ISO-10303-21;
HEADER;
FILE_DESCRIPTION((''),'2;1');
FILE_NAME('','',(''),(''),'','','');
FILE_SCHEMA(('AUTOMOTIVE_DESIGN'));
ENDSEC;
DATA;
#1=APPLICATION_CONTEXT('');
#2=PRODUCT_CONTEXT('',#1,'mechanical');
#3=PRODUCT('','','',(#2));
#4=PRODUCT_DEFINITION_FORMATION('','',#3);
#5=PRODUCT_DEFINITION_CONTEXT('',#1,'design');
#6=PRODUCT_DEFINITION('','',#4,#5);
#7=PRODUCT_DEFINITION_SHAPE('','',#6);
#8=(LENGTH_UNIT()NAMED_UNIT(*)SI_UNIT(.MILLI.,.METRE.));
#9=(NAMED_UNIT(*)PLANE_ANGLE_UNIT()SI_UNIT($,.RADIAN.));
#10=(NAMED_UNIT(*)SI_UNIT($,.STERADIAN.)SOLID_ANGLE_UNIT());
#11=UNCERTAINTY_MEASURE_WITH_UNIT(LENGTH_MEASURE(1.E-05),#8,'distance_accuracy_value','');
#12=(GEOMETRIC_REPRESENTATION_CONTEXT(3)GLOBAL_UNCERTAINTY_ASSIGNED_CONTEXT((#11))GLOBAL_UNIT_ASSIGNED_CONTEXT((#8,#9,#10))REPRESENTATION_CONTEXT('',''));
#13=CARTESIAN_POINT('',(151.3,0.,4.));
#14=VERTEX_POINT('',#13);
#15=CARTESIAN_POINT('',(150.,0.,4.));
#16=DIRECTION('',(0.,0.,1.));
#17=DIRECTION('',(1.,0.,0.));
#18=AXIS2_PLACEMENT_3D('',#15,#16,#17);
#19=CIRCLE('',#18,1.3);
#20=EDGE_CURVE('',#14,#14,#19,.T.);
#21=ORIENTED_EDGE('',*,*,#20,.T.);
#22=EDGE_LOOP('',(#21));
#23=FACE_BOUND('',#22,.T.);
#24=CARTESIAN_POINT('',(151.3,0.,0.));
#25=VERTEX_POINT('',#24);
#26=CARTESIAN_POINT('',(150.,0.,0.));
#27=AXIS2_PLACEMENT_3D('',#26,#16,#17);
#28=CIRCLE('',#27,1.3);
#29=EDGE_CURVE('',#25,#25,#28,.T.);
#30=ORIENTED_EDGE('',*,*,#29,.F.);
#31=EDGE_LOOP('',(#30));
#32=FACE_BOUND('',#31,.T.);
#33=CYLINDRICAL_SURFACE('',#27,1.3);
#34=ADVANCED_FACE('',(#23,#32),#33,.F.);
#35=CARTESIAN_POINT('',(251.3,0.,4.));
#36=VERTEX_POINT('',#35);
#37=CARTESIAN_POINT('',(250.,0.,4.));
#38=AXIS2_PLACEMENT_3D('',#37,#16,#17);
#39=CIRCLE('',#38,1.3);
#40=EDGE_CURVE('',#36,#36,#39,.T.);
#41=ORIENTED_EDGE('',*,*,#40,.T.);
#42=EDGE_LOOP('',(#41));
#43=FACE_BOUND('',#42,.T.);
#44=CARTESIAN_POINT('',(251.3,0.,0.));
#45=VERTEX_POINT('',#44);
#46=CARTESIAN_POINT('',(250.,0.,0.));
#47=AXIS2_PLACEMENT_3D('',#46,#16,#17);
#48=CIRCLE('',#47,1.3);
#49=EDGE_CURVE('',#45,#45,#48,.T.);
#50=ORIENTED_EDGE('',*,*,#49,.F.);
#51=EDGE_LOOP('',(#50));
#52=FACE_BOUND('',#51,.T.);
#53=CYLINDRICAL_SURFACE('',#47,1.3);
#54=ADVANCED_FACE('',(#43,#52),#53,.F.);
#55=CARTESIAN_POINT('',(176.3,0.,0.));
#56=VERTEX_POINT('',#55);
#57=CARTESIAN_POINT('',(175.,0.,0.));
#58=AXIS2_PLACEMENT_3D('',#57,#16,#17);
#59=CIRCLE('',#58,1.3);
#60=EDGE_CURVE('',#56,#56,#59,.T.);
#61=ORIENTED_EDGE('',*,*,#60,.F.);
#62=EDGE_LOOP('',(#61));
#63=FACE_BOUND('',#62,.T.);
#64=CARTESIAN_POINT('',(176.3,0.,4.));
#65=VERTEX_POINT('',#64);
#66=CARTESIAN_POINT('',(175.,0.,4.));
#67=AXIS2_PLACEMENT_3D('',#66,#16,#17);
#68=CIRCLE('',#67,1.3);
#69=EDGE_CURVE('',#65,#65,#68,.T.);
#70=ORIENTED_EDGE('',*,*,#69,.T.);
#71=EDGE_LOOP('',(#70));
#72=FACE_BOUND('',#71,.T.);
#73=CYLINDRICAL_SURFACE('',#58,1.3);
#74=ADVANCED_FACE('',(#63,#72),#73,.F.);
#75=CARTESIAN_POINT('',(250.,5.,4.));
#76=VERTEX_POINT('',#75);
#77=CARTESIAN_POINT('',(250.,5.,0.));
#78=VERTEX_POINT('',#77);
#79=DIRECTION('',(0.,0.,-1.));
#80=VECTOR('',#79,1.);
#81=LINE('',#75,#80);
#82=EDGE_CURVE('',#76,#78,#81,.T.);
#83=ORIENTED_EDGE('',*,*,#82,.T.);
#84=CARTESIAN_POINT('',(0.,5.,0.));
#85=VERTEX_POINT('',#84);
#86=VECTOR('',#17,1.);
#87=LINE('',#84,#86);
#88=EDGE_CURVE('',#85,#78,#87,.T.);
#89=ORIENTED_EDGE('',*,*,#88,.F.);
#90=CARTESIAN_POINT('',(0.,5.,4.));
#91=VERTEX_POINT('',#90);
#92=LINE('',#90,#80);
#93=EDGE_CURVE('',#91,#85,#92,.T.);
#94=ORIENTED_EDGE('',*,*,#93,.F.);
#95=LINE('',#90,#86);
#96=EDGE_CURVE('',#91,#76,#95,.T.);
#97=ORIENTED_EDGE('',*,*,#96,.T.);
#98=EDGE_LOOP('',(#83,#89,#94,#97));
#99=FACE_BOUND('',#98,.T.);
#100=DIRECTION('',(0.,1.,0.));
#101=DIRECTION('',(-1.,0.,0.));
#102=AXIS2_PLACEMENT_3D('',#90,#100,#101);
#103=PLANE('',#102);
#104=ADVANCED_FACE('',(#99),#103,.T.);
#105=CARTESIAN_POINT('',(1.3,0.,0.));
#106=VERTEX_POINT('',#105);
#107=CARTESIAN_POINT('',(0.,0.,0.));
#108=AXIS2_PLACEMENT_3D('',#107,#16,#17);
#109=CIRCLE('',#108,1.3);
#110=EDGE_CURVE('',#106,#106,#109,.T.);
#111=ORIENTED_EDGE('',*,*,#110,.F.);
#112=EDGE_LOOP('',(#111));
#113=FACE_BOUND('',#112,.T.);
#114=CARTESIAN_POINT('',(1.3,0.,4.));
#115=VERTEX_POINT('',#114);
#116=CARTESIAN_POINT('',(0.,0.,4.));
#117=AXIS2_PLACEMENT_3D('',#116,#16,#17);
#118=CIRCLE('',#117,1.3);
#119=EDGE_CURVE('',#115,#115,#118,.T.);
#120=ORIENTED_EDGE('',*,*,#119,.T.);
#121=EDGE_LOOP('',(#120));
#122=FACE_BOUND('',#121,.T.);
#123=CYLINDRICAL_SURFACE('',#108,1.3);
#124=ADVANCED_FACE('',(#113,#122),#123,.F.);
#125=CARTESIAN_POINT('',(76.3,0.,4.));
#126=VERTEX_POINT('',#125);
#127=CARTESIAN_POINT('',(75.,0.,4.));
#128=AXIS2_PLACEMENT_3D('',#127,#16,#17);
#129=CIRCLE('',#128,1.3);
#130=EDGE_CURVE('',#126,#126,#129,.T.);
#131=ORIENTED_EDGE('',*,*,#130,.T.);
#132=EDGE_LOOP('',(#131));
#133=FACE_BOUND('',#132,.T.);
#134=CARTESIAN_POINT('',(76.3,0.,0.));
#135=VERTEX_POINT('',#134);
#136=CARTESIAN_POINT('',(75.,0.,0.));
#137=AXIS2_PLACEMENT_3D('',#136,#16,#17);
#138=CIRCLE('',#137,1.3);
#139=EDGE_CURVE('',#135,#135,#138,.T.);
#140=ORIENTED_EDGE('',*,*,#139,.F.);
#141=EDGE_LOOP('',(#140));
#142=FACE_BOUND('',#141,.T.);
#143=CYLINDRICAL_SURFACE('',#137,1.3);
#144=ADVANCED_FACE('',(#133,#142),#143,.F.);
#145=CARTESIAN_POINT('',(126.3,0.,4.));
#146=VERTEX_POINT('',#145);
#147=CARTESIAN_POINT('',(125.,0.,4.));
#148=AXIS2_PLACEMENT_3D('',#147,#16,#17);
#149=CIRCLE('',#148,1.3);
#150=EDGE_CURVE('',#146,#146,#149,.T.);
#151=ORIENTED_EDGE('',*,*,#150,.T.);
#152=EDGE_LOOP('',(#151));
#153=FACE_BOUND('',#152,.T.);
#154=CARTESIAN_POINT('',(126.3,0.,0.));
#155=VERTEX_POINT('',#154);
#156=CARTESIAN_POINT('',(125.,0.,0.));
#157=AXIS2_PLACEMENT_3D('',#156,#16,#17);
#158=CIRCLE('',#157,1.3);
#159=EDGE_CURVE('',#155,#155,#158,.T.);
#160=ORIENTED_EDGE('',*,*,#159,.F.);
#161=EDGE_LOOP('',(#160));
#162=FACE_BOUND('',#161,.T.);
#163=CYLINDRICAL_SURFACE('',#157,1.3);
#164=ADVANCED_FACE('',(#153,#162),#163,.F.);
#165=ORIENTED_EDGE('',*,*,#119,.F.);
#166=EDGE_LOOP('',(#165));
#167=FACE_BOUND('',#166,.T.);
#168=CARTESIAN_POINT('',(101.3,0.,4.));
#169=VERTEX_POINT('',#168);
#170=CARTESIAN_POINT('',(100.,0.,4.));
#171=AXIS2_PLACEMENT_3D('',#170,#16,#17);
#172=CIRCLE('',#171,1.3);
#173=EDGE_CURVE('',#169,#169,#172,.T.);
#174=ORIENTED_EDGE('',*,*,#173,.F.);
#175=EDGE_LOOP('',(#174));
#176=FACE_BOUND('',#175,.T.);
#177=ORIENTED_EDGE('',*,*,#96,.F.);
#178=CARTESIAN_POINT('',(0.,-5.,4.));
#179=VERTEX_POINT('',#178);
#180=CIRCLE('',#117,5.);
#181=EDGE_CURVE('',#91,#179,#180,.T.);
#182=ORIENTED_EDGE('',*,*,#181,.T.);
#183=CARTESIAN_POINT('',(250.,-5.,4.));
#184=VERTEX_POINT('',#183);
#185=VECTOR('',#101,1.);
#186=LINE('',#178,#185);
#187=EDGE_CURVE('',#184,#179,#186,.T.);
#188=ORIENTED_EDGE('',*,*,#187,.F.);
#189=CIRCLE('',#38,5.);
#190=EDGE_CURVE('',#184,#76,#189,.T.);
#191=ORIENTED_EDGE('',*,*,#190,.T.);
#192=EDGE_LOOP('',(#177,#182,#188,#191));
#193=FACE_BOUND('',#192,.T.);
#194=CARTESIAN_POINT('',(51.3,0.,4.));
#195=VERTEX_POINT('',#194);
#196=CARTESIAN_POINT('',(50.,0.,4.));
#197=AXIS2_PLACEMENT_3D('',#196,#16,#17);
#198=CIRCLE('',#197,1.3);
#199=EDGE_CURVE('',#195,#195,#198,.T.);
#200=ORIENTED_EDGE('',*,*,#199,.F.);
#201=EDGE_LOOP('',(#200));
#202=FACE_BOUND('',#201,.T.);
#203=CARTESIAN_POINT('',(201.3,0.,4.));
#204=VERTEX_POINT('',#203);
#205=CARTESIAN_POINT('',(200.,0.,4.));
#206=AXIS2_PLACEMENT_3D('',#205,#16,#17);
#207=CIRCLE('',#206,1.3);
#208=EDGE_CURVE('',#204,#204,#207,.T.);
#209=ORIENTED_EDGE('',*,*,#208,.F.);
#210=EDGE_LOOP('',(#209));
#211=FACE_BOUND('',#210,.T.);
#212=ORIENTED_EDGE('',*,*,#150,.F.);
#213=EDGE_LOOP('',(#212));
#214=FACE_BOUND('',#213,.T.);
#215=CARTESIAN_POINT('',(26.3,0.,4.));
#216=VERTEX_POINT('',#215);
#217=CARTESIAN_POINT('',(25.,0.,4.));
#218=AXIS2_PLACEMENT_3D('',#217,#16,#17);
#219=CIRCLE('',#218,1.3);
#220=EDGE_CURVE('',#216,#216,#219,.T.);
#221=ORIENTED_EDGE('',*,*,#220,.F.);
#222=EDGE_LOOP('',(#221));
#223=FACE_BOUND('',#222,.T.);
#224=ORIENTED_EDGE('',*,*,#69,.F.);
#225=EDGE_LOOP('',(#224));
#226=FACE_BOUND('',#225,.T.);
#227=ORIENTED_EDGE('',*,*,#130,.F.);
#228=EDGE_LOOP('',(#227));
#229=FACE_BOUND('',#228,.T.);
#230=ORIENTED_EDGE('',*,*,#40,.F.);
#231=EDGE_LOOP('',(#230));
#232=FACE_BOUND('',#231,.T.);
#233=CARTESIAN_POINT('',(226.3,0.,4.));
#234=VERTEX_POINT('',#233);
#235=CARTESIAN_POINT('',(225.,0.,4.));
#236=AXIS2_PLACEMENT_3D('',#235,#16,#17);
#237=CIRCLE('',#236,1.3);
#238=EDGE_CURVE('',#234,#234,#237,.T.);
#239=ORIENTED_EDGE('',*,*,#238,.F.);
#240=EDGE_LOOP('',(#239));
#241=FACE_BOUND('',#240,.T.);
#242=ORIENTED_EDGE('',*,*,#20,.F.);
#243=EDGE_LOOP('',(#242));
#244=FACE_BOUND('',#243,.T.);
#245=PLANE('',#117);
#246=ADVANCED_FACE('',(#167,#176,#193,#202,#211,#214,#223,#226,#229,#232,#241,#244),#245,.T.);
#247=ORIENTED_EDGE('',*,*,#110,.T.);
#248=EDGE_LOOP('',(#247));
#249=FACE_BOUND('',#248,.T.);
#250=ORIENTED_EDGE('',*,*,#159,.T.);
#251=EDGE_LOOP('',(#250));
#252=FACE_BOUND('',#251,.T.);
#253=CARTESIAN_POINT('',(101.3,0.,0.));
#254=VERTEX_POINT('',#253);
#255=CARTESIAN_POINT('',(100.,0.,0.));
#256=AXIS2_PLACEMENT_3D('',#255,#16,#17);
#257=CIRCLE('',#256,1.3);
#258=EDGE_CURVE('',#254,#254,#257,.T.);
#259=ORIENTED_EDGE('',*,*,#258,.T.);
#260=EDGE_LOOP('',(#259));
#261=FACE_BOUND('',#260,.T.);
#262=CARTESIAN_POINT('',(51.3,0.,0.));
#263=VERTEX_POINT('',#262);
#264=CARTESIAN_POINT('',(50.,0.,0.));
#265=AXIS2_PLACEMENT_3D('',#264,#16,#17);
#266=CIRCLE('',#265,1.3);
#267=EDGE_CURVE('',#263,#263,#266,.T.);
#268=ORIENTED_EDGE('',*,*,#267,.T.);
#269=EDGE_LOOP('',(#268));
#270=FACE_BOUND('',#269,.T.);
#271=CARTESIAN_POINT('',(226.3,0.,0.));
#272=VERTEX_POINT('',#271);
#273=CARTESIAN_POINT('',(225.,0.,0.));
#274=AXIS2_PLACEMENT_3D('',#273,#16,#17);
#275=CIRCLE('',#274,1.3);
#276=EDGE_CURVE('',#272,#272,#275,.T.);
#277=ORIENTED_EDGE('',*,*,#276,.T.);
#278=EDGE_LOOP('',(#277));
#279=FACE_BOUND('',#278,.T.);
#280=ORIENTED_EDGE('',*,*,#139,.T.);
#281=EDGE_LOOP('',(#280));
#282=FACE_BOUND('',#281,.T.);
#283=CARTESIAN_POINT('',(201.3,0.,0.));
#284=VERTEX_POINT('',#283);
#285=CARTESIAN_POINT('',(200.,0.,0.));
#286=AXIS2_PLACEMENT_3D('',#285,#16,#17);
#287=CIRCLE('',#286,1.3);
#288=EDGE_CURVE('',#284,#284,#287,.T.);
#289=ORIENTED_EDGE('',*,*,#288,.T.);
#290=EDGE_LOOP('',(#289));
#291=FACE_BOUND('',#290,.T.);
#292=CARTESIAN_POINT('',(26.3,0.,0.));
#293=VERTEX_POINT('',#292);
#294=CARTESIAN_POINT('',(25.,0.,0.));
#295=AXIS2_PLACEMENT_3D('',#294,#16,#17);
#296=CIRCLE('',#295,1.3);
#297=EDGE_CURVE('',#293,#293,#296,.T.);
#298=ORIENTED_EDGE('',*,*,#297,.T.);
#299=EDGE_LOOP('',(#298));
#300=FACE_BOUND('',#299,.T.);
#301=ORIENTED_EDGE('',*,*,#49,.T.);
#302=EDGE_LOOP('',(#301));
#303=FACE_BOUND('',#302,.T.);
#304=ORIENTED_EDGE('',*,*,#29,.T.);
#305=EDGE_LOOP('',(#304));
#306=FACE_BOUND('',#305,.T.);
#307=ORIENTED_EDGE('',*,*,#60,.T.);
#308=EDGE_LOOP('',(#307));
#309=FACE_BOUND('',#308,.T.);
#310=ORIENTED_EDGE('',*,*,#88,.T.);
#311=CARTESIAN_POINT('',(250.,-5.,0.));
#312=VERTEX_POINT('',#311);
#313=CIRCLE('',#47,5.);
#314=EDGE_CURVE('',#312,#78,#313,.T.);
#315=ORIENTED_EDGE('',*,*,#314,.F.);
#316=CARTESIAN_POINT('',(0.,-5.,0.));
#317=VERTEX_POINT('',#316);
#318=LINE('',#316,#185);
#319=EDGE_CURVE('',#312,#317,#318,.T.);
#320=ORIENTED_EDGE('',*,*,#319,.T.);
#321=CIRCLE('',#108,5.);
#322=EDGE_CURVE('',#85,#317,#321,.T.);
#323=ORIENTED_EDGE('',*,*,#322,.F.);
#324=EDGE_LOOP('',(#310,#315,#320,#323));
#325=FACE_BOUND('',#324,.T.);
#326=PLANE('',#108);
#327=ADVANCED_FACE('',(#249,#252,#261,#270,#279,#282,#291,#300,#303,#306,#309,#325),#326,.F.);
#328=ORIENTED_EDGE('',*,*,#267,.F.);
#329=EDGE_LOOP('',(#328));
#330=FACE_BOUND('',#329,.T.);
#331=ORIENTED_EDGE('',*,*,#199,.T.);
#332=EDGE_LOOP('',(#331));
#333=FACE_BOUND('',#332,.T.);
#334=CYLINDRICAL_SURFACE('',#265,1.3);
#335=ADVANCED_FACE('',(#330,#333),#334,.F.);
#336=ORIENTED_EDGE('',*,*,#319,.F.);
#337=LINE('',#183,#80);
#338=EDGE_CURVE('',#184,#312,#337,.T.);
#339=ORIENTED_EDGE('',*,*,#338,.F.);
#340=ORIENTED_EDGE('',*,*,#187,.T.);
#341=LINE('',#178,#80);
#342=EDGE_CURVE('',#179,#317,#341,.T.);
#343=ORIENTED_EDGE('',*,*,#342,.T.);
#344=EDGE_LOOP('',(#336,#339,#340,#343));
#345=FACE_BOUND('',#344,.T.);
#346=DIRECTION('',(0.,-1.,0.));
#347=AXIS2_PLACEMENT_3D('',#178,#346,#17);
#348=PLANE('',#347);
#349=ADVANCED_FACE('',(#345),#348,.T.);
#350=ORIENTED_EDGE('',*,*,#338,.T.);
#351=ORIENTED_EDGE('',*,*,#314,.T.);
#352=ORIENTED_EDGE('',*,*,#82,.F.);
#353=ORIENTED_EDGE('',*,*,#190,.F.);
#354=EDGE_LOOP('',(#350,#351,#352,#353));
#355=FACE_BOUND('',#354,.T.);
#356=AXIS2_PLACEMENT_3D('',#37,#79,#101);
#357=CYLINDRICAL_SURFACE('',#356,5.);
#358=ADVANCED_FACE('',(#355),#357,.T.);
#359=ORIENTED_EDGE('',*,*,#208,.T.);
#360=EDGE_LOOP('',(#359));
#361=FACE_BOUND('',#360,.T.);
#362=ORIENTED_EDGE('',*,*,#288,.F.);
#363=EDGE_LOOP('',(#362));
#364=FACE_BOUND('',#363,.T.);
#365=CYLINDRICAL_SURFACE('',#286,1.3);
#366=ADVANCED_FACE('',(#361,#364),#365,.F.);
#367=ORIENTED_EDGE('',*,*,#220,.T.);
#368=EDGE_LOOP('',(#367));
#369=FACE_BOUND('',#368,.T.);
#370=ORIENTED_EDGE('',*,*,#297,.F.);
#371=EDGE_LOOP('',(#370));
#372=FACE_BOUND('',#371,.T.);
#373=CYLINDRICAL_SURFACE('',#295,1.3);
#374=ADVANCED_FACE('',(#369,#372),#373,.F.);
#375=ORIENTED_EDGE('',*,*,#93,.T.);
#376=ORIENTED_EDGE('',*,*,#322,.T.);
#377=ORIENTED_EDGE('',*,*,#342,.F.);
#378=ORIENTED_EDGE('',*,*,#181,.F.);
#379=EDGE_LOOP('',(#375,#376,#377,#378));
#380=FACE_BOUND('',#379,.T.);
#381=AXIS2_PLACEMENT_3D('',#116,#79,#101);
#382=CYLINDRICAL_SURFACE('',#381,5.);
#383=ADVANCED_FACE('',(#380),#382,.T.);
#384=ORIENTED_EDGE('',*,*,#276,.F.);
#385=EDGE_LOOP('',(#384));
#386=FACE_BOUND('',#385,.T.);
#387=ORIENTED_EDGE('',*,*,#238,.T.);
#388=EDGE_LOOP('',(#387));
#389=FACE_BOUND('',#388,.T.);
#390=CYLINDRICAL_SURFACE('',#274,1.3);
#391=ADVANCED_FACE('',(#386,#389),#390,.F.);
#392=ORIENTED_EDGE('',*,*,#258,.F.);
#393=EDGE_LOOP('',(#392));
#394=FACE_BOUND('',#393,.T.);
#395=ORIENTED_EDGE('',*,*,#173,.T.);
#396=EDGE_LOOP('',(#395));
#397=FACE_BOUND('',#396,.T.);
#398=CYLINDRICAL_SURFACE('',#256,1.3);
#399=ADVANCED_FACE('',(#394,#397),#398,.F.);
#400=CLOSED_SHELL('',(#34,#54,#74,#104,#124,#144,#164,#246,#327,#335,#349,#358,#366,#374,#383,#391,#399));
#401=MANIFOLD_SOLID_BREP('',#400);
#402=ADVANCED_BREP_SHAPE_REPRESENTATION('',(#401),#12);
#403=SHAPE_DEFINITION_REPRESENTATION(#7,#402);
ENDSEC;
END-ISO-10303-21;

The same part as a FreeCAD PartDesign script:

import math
import FreeCAD as App
import Part
import Sketcher

V = App.Vector
Q = App.Units.Quantity

doc = App.newDocument("Part")
body = doc.addObject("PartDesign::Body", "Body")

# Sketch on XY plane
sketch1 = body.newObject("Sketcher::SketchObject", "Sketch")
sketch1.AttachmentSupport = (doc.getObject("XY_Plane"), [""])
sketch1.MapMode = "FlatFace"
sketch1.addGeometry([
    Part.LineSegment(V(250, 5, 0), V(0, 5, 0)),
    Part.ArcOfCircle(Part.Circle(V(0, 0, 0), V(0, 0, 1), 5), math.radians(90), math.radians(270)),
    Part.LineSegment(V(0, -5, 0), V(250, -5, 0)),
    Part.ArcOfCircle(Part.Circle(V(250, 0, 0), V(0, 0, 1), 5), math.radians(-90), math.radians(90)),
], False)
sketch1.addConstraint([
    Sketcher.Constraint("Tangent", 0, 2, 1, 1),
    Sketcher.Constraint("Tangent", 1, 2, 2, 1),
    Sketcher.Constraint("Tangent", 2, 2, 3, 1),
    Sketcher.Constraint("Tangent", 3, 2, 0, 1),
    Sketcher.Constraint("Horizontal", 0),
    Sketcher.Constraint("Horizontal", 2),
    Sketcher.Constraint("Coincident", 1, 3, -1, 1),
    Sketcher.Constraint("Radius", 1, Q("5 mm")),
    Sketcher.Constraint("DistanceX", 0, 2, 0, 1, Q("250 mm")),
])
pad1 = body.newObject("PartDesign::Pad", "Pad")
pad1.Profile = sketch1
pad1.Length = 4

# Sketch on XY plane
sketch2 = body.newObject("Sketcher::SketchObject", "Sketch001")
sketch2.AttachmentSupport = (doc.getObject("XY_Plane"), [""])
sketch2.MapMode = "FlatFace"
sketch2.AttachmentOffset = App.Placement(V(0, 0, 4), App.Rotation())
sketch2.addGeometry([
    Part.Circle(V(0, 0, 0), V(0, 0, 1), 1.3),
    Part.Circle(V(250, 0, 0), V(0, 0, 1), 1.3),
], False)
sketch2.addConstraint([
    Sketcher.Constraint("Coincident", 0, 3, -1, 1),
    Sketcher.Constraint("Equal", 0, 1),
    Sketcher.Constraint("PointOnObject", 1, 3, -1),
    Sketcher.Constraint("Diameter", 0, Q("2.6 mm")),
    Sketcher.Constraint("DistanceX", -1, 1, 1, 3, Q("250 mm")),
])
pocket1 = body.newObject("PartDesign::Pocket", "Pocket")
pocket1.Profile = sketch2
pocket1.Type = "ThroughAll"
doc.recompute()

linearpattern = body.newObject("PartDesign::LinearPattern", "LinearPattern")
linearpattern.Originals = [pocket1]
linearpattern.Direction = (doc.getObject("X_Axis"), [""])
linearpattern.Mode = "offset"
linearpattern.Offset = 25
linearpattern.Occurrences = 10
body.Tip = linearpattern

doc.recompute()
